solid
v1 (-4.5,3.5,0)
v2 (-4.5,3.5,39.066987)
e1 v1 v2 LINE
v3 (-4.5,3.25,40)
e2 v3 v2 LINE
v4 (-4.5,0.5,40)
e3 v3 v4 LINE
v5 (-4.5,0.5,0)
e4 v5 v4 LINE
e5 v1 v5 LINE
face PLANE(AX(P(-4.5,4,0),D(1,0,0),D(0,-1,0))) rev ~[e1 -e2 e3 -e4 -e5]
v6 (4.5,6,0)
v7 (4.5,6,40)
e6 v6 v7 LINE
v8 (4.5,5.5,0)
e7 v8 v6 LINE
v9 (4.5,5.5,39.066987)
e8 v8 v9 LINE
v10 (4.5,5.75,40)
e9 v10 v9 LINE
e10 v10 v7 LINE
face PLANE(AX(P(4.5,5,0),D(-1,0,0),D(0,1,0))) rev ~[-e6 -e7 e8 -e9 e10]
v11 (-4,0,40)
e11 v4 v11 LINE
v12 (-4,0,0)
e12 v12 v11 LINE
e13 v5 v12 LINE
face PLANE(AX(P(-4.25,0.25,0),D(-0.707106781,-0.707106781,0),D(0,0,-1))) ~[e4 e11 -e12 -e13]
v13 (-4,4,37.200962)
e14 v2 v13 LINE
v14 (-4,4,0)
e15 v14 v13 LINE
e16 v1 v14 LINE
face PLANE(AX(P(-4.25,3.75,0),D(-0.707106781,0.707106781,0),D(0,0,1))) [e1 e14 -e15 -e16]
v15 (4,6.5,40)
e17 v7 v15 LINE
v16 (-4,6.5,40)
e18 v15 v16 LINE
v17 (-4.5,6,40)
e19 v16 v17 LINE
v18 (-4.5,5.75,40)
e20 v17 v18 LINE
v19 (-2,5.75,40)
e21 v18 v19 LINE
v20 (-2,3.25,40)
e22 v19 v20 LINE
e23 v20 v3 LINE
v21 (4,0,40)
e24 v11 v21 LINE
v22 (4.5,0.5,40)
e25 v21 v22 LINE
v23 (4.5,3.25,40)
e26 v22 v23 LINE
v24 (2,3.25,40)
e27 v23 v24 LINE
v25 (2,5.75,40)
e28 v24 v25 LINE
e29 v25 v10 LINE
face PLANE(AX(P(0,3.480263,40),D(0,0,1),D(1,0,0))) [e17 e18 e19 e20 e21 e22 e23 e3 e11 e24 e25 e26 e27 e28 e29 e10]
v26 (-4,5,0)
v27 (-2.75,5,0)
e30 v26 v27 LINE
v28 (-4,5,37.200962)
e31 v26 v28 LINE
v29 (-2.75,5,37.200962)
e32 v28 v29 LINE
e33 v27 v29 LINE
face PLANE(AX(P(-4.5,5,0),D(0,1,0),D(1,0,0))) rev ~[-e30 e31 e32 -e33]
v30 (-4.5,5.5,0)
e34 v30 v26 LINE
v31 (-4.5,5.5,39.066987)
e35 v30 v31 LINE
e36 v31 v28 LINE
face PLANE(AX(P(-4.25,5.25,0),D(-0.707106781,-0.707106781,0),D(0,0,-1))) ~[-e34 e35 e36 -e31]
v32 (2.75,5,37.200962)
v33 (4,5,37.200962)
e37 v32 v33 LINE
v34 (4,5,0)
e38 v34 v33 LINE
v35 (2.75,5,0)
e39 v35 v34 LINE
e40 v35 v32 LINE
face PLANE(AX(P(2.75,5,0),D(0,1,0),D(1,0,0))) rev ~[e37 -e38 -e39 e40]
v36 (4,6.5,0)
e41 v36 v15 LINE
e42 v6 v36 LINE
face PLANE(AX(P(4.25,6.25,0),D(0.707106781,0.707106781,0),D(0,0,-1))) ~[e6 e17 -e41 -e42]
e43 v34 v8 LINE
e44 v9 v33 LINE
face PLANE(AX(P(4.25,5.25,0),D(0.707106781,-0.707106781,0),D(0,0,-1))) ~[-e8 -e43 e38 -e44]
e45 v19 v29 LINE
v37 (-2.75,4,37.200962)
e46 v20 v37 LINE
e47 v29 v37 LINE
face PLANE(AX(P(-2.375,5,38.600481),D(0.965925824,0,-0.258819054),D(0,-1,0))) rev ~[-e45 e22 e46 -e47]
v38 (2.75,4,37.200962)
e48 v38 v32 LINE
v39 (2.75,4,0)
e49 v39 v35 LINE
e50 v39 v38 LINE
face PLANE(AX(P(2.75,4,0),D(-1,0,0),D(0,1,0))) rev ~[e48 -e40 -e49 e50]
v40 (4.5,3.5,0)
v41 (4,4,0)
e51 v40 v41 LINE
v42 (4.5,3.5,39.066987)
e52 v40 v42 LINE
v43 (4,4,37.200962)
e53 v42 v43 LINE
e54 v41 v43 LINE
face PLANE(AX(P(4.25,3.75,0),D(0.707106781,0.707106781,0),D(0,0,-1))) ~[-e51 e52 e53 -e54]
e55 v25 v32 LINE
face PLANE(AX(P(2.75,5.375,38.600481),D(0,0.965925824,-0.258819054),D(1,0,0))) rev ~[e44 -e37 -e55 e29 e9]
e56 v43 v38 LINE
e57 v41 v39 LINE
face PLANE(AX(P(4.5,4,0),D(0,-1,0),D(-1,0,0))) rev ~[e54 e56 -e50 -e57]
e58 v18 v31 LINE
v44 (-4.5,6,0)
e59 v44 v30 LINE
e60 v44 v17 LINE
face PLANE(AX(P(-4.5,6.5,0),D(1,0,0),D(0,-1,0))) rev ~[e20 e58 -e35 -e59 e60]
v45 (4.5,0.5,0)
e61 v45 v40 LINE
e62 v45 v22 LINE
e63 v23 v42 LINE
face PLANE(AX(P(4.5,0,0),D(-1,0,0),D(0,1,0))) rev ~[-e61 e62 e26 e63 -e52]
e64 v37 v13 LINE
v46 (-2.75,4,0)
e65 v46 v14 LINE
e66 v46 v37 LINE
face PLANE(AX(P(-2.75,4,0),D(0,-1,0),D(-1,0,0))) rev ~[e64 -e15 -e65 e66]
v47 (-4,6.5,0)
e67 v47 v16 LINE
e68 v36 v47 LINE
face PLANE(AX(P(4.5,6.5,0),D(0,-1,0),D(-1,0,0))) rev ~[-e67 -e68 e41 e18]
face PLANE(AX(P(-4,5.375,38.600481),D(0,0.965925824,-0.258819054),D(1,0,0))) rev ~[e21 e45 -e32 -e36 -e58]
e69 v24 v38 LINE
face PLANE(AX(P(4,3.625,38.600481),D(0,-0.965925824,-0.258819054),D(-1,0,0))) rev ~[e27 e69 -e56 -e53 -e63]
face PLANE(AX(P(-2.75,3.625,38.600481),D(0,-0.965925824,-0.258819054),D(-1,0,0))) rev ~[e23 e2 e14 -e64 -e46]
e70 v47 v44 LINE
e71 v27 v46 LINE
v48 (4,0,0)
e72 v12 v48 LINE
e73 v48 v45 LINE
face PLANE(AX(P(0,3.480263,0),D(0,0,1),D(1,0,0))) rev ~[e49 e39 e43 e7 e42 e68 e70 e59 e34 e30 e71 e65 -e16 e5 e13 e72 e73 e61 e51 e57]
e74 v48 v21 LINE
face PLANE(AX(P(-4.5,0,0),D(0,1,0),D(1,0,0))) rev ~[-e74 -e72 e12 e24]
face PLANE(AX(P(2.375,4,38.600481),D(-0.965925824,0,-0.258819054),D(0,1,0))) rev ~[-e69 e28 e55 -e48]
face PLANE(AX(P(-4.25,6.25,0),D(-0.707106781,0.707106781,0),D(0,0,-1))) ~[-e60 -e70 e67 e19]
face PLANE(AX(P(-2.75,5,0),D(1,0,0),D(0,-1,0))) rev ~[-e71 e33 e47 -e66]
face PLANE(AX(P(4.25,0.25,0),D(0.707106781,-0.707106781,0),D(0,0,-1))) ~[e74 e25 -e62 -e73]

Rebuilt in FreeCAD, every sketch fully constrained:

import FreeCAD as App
import Part
import Sketcher
Q = App.Units.Quantity


def edges_at(feature, points):
    """Names of the edges that pass closest to the given points."""
    edges = feature.Shape.Edges
    near = lambda p: min(range(len(edges)), key=lambda i: edges[i].distToShape(Part.Vertex(*p))[0])
    return sorted({f"Edge{near(p) + 1}" for p in points})


def add_polygon(sketch, points):
    """Adds a closed chain of lines whose ends are joined by coincident constraints."""
    first, n = sketch.GeometryCount, len(points)
    for a, b in zip(points, points[1:] + points[:1]):
        sketch.addGeometry(Part.LineSegment(App.Vector(*a, 0), App.Vector(*b, 0)), False)
    for i in range(n):
        sketch.addConstraint(Sketcher.Constraint("Coincident", first + i, 2, first + (i + 1) % n, 1))

doc = App.newDocument("Part")
body = doc.addObject("PartDesign::Body", "Body")

# Sketch on XY plane
sketch1 = doc.addObject("Sketcher::SketchObject", "Sketch")
body.addObject(sketch1)
sketch1.AttachmentSupport = (doc.XY_Plane, [""])
sketch1.MapMode = "FlatFace"
add_polygon(sketch1, [(-4.5, 4), (-4.5, 0), (4.5, 0), (4.5, 4), (2.8, 4), (2.8, 5), (4.5, 5), (4.5, 6.5), (-4.5, 6.5), (-4.5, 5), (-2.8, 5), (-2.8, 4)])  # lines 0-11
sketch1.addConstraint([
    Sketcher.Constraint("Vertical", 0),
    Sketcher.Constraint("Horizontal", 1),
    Sketcher.Constraint("Vertical", 2),
    Sketcher.Constraint("Horizontal", 3),
    Sketcher.Constraint("Vertical", 4),
    Sketcher.Constraint("Horizontal", 5),
    Sketcher.Constraint("Vertical", 6),
    Sketcher.Constraint("Horizontal", 7),
    Sketcher.Constraint("Vertical", 8),
    Sketcher.Constraint("Horizontal", 9),
    Sketcher.Constraint("Vertical", 10),
    Sketcher.Constraint("Horizontal", 11),
    Sketcher.Constraint("Symmetric", 0, 2, 1, 2, -1, 1),
    Sketcher.Constraint("Symmetric", 5, 2, 8, 2, -2),
    Sketcher.Constraint("Symmetric", 3, 2, 10, 2, -2),
    Sketcher.Constraint("Vertical", 2, 2, 5, 2),
    Sketcher.Constraint("DistanceX", 1, 1, 1, 2, Q("9 mm")),
    Sketcher.Constraint("DistanceY", 0, 2, 0, 1, Q("4 mm")),
    Sketcher.Constraint("DistanceY", 4, 1, 4, 2, Q("1 mm")),
    Sketcher.Constraint("DistanceY", 6, 1, 6, 2, Q("1.5 mm")),
    Sketcher.Constraint("DistanceX", 3, 2, 3, 1, Q("1.75 mm")),
])
pad1 = doc.addObject("PartDesign::Pad", "Pad")
body.addObject(pad1)
pad1.Profile = sketch1
pad1.Length = 40
doc.recompute()

chamfer = doc.addObject("PartDesign::Chamfer", "Chamfer")
body.addObject(chamfer)
chamfer.Base = (pad1, edges_at(pad1, [
    (-4.5, 5, 20),
    (-4.5, 4, 20),
    (4.5, 4, 20),
    (4.5, 5, 20),
    (4.5, 6.5, 20),
    (4.5, 0, 20),
    (-4.5, 6.5, 20),
    (-4.5, 0, 20),
]))
chamfer.Size = 0.5
doc.recompute()

chamfer2 = doc.addObject("PartDesign::Chamfer", "Chamfer001")
body.addObject(chamfer2)
chamfer2.Base = (chamfer, edges_at(chamfer, [
    (-2.75, 4.5, 40),
    (2.75, 4.5, 40),
    (-3.375, 4, 40),
    (-3.375, 5, 40),
    (3.375, 5, 40),
    (3.375, 4, 40),
]))
chamfer2.ChamferType = "Two distances"
chamfer2.Size = 0.75
chamfer2.Size2 = 2.799038

doc.recompute()
